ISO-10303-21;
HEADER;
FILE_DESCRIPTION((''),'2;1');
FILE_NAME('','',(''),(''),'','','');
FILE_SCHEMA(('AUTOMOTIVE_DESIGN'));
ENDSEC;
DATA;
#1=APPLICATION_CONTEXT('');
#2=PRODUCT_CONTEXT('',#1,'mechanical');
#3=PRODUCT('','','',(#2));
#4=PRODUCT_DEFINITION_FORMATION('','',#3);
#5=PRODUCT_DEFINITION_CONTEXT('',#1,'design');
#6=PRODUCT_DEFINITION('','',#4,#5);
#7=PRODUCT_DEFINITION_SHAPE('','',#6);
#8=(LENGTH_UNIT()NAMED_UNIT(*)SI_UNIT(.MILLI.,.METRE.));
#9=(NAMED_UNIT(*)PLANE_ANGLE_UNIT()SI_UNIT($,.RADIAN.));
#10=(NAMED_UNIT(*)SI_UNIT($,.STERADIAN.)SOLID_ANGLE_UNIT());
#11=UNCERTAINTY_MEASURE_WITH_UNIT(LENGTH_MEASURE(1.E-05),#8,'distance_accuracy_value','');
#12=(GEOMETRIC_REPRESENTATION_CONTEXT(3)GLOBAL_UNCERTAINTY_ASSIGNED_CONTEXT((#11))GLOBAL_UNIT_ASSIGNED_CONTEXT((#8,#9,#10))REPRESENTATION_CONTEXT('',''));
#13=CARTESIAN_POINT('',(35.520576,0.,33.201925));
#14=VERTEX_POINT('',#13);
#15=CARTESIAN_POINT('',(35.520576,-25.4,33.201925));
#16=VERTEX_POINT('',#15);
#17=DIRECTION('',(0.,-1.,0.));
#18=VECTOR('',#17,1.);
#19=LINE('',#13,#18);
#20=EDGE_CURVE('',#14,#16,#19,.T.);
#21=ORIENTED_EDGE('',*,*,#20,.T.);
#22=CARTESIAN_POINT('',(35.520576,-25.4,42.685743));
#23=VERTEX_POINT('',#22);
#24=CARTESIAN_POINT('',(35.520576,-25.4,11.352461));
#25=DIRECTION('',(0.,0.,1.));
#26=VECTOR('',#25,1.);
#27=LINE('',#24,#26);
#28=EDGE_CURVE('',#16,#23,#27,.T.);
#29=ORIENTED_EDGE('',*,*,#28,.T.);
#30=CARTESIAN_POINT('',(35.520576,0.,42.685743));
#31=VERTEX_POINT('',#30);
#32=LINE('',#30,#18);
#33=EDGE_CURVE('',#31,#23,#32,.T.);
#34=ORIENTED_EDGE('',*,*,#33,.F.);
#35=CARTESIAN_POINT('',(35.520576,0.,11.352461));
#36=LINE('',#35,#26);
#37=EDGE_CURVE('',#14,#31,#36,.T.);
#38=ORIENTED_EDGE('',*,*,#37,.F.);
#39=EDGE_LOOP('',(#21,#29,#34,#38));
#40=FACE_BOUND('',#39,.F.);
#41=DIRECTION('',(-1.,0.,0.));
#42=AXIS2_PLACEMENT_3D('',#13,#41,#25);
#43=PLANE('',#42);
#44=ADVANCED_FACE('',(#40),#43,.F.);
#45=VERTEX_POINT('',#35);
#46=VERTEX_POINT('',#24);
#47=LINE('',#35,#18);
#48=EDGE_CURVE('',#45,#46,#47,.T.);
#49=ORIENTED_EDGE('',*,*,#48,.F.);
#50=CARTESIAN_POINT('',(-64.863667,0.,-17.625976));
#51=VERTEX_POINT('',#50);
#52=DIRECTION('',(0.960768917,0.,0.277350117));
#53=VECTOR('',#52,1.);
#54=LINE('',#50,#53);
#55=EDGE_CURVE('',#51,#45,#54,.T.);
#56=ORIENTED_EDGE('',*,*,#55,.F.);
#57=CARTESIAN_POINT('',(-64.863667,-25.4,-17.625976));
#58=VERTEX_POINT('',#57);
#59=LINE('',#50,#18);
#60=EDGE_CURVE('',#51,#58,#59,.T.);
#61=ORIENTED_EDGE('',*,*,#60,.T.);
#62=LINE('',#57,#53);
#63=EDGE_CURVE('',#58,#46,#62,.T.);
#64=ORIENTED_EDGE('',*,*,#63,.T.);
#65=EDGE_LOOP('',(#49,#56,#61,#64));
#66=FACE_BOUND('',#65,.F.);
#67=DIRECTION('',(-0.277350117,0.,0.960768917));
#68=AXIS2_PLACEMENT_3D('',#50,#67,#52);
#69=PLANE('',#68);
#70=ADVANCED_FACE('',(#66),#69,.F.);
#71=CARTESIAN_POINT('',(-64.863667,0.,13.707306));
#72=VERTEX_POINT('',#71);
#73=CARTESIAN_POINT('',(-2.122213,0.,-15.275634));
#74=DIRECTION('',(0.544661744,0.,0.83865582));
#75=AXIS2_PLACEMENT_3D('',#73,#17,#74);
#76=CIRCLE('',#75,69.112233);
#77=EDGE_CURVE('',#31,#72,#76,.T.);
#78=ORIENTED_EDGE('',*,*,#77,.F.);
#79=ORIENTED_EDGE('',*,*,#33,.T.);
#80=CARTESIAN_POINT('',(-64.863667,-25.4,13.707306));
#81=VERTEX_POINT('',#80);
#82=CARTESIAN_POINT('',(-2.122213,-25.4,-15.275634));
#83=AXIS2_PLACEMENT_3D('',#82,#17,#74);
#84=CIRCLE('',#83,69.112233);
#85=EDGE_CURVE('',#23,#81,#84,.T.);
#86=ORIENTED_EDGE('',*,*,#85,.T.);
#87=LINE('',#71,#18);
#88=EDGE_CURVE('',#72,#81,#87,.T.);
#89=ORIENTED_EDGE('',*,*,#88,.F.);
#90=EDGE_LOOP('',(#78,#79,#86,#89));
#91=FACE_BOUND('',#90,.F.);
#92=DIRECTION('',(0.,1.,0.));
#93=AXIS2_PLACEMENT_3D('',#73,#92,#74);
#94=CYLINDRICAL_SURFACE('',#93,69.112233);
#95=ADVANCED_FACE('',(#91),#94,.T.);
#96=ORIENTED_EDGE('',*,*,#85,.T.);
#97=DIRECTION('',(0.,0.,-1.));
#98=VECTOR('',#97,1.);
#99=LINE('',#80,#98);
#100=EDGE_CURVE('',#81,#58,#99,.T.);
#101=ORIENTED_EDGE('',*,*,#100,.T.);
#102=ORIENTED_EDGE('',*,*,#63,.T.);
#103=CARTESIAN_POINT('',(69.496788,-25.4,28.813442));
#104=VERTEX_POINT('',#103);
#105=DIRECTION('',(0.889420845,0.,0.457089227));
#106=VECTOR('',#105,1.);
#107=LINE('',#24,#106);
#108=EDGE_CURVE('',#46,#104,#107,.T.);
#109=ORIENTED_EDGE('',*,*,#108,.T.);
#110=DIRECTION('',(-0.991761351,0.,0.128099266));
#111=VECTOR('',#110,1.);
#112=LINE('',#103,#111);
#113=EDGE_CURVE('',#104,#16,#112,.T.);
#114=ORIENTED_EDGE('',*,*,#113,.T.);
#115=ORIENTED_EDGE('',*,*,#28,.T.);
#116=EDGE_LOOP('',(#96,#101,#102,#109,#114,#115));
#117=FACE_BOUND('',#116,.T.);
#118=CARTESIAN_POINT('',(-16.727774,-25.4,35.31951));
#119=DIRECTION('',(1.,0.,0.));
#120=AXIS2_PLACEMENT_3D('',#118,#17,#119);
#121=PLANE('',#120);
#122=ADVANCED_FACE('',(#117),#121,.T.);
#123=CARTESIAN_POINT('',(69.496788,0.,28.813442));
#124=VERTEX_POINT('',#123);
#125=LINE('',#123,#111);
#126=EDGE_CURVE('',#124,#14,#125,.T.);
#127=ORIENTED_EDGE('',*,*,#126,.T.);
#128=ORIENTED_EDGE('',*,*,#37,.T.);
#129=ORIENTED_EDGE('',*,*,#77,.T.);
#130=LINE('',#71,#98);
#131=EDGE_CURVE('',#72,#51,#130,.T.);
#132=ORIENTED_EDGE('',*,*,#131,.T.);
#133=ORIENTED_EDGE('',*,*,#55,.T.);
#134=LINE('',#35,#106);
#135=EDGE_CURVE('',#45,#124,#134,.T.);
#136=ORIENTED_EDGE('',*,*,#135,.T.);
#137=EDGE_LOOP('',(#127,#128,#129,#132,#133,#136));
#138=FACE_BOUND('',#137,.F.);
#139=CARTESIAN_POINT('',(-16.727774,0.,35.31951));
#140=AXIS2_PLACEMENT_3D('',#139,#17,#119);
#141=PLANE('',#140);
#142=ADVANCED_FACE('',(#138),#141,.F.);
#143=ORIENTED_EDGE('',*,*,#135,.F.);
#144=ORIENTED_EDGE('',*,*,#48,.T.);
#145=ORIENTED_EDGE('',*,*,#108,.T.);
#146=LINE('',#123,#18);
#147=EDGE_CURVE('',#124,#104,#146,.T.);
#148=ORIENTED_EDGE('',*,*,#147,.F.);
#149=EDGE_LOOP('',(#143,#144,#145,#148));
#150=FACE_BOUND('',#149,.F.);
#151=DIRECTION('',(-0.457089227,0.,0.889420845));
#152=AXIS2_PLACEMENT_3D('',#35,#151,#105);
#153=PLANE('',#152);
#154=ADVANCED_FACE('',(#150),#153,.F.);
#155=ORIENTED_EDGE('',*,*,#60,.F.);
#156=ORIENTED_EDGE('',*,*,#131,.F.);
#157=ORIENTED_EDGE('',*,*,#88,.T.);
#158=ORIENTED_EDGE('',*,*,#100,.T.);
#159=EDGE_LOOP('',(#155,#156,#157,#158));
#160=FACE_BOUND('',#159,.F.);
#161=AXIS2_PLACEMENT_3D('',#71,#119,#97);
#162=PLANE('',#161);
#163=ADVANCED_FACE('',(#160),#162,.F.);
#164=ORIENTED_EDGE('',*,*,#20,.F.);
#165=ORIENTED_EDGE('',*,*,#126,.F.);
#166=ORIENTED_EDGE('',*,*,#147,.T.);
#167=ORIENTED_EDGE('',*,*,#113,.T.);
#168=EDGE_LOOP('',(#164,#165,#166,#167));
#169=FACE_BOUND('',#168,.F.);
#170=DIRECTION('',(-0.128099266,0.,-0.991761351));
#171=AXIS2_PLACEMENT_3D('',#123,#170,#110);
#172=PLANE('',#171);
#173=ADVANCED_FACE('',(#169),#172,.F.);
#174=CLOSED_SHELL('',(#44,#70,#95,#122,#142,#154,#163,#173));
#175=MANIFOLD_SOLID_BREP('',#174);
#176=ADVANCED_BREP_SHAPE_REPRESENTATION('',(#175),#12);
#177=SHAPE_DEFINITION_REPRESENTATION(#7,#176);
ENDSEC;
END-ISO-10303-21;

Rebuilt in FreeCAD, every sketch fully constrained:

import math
import FreeCAD as App
import Part
import Sketcher
from FreeCAD import Vector
Q = App.Units.Quantity

doc = App.newDocument("Part")
body = doc.addObject("PartDesign::Body", "Body")

# Sketch on XZ plane
sketch1 = body.newObject("Sketcher::SketchObject", "Sketch")
sketch1.AttachmentSupport = (doc.getObject("XZ_Plane"), [""])
sketch1.MapMode = "FlatFace"
sketch1.addGeometry([
    Part.ArcOfCircle(Part.Circle(Vector(-2, -15, 0), Vector(0, 0, 1), 69), math.radians(57), math.radians(155)),  # 0
    Part.LineSegment(Vector(-65, 14, 0), Vector(-65, -18, 0)),  # 1
    Part.LineSegment(Vector(-65, -18, 0), Vector(36, 11, 0)),  # 2
    Part.LineSegment(Vector(36, 11, 0), Vector(69, 29, 0)),  # 3
    Part.LineSegment(Vector(69, 29, 0), Vector(36, 33, 0)),  # 4
    Part.LineSegment(Vector(36, 33, 0), Vector(36, 43, 0)),  # 5
], False)
sketch1.addConstraint([
    Sketcher.Constraint("Coincident", 0, 2, 1, 1),
    Sketcher.Constraint("Coincident", 1, 2, 2, 1),
    Sketcher.Constraint("Coincident", 2, 2, 3, 1),
    Sketcher.Constraint("Coincident", 3, 2, 4, 1),
    Sketcher.Constraint("Coincident", 4, 2, 5, 1),
    Sketcher.Constraint("Coincident", 5, 2, 0, 1),
    Sketcher.Constraint("Vertical", 1),
    Sketcher.Constraint("Vertical", 5),
    Sketcher.Constraint("Vertical", 2, 2, 4, 2),
    Sketcher.Constraint("Radius", 0, 69.112233),
    Sketcher.Constraint("DistanceX", 0, 3, 3, 2, 71.619001),
    Sketcher.Constraint("DistanceY", 1, 2, 4, 2, 50.827901),
    Sketcher.Constraint("DistanceY", 3, 2, 5, 2, 13.872301),
    Sketcher.Constraint("DistanceY", 1, 2, 1, 1, 31.333282),
    Sketcher.Constraint("DistanceY", 5, 1, 5, 2, 9.483818),
    Sketcher.Constraint("DistanceY", -1, 1, 2, 2, 11.352461),
    Sketcher.Constraint("DistanceY", -1, 1, 3, 2, 28.813442),
    Sketcher.Constraint("DistanceY", 0, 3, 0, 2, 28.98294),
    Sketcher.Constraint("DistanceX", 0, 3, -1, 1, 2.122213),
])
pad1 = body.newObject("PartDesign::Pad", "Pad")
pad1.Profile = sketch1
pad1.Length = Q("1 in")

doc.recompute()
